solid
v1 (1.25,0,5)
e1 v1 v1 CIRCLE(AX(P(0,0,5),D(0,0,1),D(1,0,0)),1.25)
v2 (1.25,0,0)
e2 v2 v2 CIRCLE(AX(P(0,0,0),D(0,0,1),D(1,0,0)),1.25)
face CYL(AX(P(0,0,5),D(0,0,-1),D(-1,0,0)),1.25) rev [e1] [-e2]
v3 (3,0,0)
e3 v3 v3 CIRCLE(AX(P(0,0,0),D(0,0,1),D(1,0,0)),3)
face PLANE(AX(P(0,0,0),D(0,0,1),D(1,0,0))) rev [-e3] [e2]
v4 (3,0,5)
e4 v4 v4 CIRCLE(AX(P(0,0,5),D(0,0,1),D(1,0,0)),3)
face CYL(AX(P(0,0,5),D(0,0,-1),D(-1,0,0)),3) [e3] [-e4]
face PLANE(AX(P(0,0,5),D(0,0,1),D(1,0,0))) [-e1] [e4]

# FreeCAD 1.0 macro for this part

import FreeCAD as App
import Part
import Sketcher
from FreeCAD import Vector
Q = App.Units.Quantity

doc = App.newDocument("Part")
body = doc.addObject("PartDesign::Body", "Body")

# Sketch on XY plane
sketch1 = doc.addObject("Sketcher::SketchObject", "Sketch")
body.addObject(sketch1)
sketch1.AttachmentSupport = (doc.XY_Plane, [""])
sketch1.MapMode = "FlatFace"
sketch1.addGeometry(Part.Circle(Vector(0, 0, 0), Vector(0, 0, 1), 3), False)
sketch1.addGeometry(Part.Circle(Vector(0, 0, 0), Vector(0, 0, 1), 1.2), False)
sketch1.addConstraint(Sketcher.Constraint("Coincident", 0, 3, -1, 1))
sketch1.addConstraint(Sketcher.Constraint("Coincident", 1, 3, -1, 1))
sketch1.addConstraint(Sketcher.Constraint("Diameter", 0, Q("6 mm")))
sketch1.addConstraint(Sketcher.Constraint("Diameter", 1, Q("2.5 mm")))
pad1 = doc.addObject("PartDesign::Pad", "Pad")
body.addObject(pad1)
pad1.Profile = sketch1
pad1.Length = 5

doc.recompute()
